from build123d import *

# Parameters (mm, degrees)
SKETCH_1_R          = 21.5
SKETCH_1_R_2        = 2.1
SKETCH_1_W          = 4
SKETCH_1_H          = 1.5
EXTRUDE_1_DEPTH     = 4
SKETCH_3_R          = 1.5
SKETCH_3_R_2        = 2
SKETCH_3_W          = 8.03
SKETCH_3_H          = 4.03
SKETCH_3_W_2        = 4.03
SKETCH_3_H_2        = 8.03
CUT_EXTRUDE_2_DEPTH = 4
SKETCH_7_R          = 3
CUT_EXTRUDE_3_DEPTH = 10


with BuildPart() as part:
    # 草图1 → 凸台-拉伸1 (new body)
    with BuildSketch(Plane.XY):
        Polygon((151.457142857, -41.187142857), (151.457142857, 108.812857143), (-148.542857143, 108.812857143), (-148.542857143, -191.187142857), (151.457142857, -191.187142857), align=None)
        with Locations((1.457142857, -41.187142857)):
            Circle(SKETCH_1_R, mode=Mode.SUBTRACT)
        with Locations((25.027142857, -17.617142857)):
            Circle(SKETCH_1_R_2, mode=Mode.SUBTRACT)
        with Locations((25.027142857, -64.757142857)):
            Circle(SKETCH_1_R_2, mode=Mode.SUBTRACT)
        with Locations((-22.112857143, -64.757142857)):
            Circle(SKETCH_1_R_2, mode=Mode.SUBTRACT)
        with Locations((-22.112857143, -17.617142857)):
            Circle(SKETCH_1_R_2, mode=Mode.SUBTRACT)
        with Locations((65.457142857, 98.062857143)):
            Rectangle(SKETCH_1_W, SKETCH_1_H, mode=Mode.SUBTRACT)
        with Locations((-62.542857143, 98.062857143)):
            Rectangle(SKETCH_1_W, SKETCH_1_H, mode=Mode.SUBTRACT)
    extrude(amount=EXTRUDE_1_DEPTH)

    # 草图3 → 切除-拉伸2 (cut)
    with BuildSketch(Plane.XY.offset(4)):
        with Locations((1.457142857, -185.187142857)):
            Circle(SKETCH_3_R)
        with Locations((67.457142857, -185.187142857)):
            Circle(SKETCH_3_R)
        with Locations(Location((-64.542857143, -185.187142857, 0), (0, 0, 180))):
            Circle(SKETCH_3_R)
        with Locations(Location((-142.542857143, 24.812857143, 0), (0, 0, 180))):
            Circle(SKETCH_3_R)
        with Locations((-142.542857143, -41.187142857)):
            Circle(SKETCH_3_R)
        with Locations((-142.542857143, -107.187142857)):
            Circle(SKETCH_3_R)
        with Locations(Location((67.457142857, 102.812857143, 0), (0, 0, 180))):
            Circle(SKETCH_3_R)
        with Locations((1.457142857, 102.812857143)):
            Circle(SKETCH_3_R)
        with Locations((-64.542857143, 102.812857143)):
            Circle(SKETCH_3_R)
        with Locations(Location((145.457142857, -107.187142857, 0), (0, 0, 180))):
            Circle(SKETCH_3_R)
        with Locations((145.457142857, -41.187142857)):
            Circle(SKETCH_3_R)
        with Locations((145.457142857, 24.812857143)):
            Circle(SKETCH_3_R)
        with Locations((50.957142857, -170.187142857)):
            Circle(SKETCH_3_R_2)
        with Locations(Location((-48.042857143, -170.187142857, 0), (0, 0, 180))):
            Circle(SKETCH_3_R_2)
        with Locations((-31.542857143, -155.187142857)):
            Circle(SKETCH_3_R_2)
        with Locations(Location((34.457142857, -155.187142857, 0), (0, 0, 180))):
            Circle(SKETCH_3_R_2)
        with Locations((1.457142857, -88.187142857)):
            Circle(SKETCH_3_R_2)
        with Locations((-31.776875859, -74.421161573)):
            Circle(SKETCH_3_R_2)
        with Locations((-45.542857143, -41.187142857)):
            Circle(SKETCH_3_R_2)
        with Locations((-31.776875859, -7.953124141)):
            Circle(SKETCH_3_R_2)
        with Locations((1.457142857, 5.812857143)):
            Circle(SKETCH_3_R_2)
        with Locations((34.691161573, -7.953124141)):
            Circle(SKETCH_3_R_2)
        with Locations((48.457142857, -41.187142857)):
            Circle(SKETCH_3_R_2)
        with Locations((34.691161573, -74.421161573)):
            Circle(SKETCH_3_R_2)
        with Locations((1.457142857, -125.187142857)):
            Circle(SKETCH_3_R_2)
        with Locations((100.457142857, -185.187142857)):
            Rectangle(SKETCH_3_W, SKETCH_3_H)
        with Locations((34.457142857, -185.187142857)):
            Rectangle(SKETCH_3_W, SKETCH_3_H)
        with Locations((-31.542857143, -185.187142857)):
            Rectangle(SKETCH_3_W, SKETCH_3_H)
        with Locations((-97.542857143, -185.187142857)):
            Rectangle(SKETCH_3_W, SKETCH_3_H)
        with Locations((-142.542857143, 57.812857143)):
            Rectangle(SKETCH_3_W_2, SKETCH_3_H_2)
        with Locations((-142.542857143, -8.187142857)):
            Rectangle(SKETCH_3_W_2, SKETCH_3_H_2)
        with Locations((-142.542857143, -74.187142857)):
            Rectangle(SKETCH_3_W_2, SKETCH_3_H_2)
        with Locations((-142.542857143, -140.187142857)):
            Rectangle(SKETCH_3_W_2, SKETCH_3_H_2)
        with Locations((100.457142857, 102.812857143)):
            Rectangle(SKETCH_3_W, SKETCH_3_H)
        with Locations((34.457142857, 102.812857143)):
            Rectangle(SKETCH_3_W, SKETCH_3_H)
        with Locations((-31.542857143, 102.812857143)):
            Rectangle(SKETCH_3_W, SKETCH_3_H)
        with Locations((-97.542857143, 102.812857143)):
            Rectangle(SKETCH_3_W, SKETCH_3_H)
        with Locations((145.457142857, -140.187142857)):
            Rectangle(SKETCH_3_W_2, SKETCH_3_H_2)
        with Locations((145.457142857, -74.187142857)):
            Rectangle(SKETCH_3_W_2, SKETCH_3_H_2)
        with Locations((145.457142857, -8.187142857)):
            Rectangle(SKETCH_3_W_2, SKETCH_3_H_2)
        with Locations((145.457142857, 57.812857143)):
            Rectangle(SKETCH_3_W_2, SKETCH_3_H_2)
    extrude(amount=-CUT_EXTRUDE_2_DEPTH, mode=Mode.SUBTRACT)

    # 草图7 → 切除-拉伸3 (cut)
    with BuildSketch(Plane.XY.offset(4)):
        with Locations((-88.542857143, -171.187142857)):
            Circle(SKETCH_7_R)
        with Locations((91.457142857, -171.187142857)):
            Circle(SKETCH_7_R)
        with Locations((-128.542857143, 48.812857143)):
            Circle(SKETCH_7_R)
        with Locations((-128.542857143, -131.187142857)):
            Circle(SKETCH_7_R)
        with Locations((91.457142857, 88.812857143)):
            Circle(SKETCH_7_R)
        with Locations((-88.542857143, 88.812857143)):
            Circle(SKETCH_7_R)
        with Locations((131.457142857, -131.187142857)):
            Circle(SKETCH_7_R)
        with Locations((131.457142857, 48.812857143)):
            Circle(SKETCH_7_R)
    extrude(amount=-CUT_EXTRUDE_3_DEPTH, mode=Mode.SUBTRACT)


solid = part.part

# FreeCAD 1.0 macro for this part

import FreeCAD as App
import Part
import Sketcher
from FreeCAD import Vector


def add_polygon(sketch, points):
    """Adds a closed chain of lines whose ends are joined by coincident constraints."""
    first, n = sketch.GeometryCount, len(points)
    for a, b in zip(points, points[1:] + points[:1]):
        sketch.addGeometry(Part.LineSegment(App.Vector(*a, 0), App.Vector(*b, 0)), False)
    for i in range(n):
        sketch.addConstraint(Sketcher.Constraint("Coincident", first + i, 2, first + (i + 1) % n, 1))

doc = App.newDocument("Part")
params = doc.addObject("Spreadsheet::Sheet", "Params")
for row, (alias, value) in enumerate([
    ("sketch1_diameter", "43 mm"),
    ("sketch1_diameter2", "4.2 mm"),
    ("sketch1_width", "300 mm"),
    ("sketch1_width2", "4 mm"),
    ("sketch1_height", "1.5 mm"),
    ("pad1_length", "4 mm"),
    ("sketch2_diameter", "3 mm"),
    ("sketch2_diameter2", "4 mm"),
    ("sketch2_width", "8.03 mm"),
    ("sketch2_width2", "4.03 mm"),
    ("pocket1_length", "4 mm"),
    ("sketch3_diameter", "6 mm"),
    ("pocket2_length", "10 mm"),
], start=1):
    params.set(f"A{row}", alias)
    params.set(f"B{row}", "=" + value)
    params.setAlias(f"B{row}", alias)

body = doc.addObject("PartDesign::Body", "Body")

# Sketch on XY plane
sketch1 = body.newObject("Sketcher::SketchObject", "Sketch")
sketch1.AttachmentSupport = (doc.getObject("XY_Plane"), [""])
sketch1.MapMode = "FlatFace"
add_polygon(sketch1, [(151.5, 108.8), (-148.5, 108.8), (-148.5, -191.2), (151.5, -191.2)])  # lines 0-3
sketch1.addGeometry(Part.Circle(Vector(-22.1, -64.8, 0), Vector(0, 0, 1), 2.1), False)  # 4
sketch1.addGeometry(Part.Circle(Vector(-22.1, -17.6, 0), Vector(0, 0, 1), 2.1), False)  # 5
sketch1.addGeometry(Part.Circle(Vector(25, -64.8, 0), Vector(0, 0, 1), 2.1), False)  # 6
sketch1.addGeometry(Part.Circle(Vector(1.5, -41.2, 0), Vector(0, 0, 1), 21.5), False)  # 7
sketch1.addGeometry(Part.Circle(Vector(25, -17.6, 0), Vector(0, 0, 1), 2.1), False)  # 8
add_polygon(sketch1, [(-60.5, 97.3), (-64.5, 97.3), (-64.5, 98.8), (-60.5, 98.8)])  # lines 9-12
add_polygon(sketch1, [(67.5, 97.3), (63.5, 97.3), (63.5, 98.8), (67.5, 98.8)])  # lines 13-16
sketch1.addConstraint([
    Sketcher.Constraint("Horizontal", 0),
    Sketcher.Constraint("Vertical", 1),
    Sketcher.Constraint("Horizontal", 2),
    Sketcher.Constraint("Vertical", 3),
    Sketcher.Constraint("Horizontal", 9),
    Sketcher.Constraint("Vertical", 10),
    Sketcher.Constraint("Horizontal", 11),
    Sketcher.Constraint("Vertical", 12),
    Sketcher.Constraint("Horizontal", 13),
    Sketcher.Constraint("Vertical", 14),
    Sketcher.Constraint("Horizontal", 15),
    Sketcher.Constraint("Vertical", 16),
    Sketcher.Constraint("Equal", 4, 5),
    Sketcher.Constraint("Equal", 5, 6),
    Sketcher.Constraint("Equal", 6, 8),
    Sketcher.Constraint("Horizontal", 4, 3, 6, 3),
    Sketcher.Constraint("Horizontal", 5, 3, 8, 3),
    Sketcher.Constraint("Horizontal", 12, 2, 13, 2),
    Sketcher.Constraint("Horizontal", 11, 2, 14, 2),
    Sketcher.Constraint("Vertical", 4, 3, 5, 3),
    Sketcher.Constraint("Vertical", 6, 3, 8, 3),
    Sketcher.Constraint("Equal", 11, 13),
    Sketcher.Constraint("Equal", 2, 1),
    Sketcher.Constraint("Diameter", 7, 43.0),
    Sketcher.Constraint("Diameter", 4, 4.2),
    Sketcher.Constraint("DistanceX", 0, 2, 0, 1, 300.0),
    Sketcher.Constraint("DistanceX", 9, 2, 9, 1, 4.0),
    Sketcher.Constraint("DistanceY", 10, 1, 10, 2, 1.5),
    Sketcher.Constraint("DistanceX", 0, 2, 7, 3, 150.0),
    Sketcher.Constraint("DistanceY", 7, 3, 0, 2, 150.0),
    Sketcher.Constraint("DistanceX", 0, 2, 9, 2, 84.0),
    Sketcher.Constraint("DistanceY", 10, 2, 0, 2, 10.0),
    Sketcher.Constraint("DistanceX", 13, 2, 3, 2, 88.0),
    Sketcher.Constraint("DistanceY", 4, 3, 5, 3, 47.14),
    Sketcher.Constraint("DistanceX", 4, 3, 6, 3, 47.14),
    Sketcher.Constraint("DistanceX", 5, 3, 7, 3, 23.57),
    Sketcher.Constraint("DistanceY", 7, 3, 5, 3, 23.57),
    Sketcher.Constraint("DistanceX", 4, 3, -1, 1, 22.112857),
    Sketcher.Constraint("DistanceY", 4, 3, -1, 1, 64.757143),
])
sketch1.setExpression("Constraints[35]", "Params.sketch1_diameter")
sketch1.setExpression("Constraints[36]", "Params.sketch1_diameter2")
sketch1.setExpression("Constraints[37]", "Params.sketch1_width")
sketch1.setExpression("Constraints[38]", "Params.sketch1_width2")
sketch1.setExpression("Constraints[39]", "Params.sketch1_height")
pad1 = body.newObject("PartDesign::Pad", "Pad")
pad1.Profile = sketch1
pad1.setExpression("Length", "Params.pad1_length")

# Sketch on XY plane
sketch2 = body.newObject("Sketcher::SketchObject", "Sketch001")
sketch2.AttachmentSupport = (doc.getObject("XY_Plane"), [""])
sketch2.MapMode = "FlatFace"
sketch2.AttachmentOffset = App.Placement(Vector(0, 0, 4), App.Rotation())
sketch2.addGeometry(Part.Circle(Vector(1.5, -185.2, 0), Vector(0, 0, 1), 1.5), False)  # 0
sketch2.addGeometry(Part.Circle(Vector(67.5, -185.2, 0), Vector(0, 0, 1), 1.5), False)  # 1
sketch2.addGeometry(Part.Circle(Vector(-64.5, -185.2, 0), Vector(0, 0, 1), 1.5), False)  # 2
sketch2.addGeometry(Part.Circle(Vector(-142.5, 24.8, 0), Vector(0, 0, 1), 1.5), False)  # 3
sketch2.addGeometry(Part.Circle(Vector(-142.5, -41.2, 0), Vector(0, 0, 1), 1.5), False)  # 4
sketch2.addGeometry(Part.Circle(Vector(-142.5, -107.2, 0), Vector(0, 0, 1), 1.5), False)  # 5
sketch2.addGeometry(Part.Circle(Vector(67.5, 102.8, 0), Vector(0, 0, 1), 1.5), False)  # 6
sketch2.addGeometry(Part.Circle(Vector(1.5, 102.8, 0), Vector(0, 0, 1), 1.5), False)  # 7
sketch2.addGeometry(Part.Circle(Vector(-64.5, 102.8, 0), Vector(0, 0, 1), 1.5), False)  # 8
sketch2.addGeometry(Part.Circle(Vector(145.5, -107.2, 0), Vector(0, 0, 1), 1.5), False)  # 9
sketch2.addGeometry(Part.Circle(Vector(145.5, -41.2, 0), Vector(0, 0, 1), 1.5), False)  # 10
sketch2.addGeometry(Part.Circle(Vector(145.5, 24.8, 0), Vector(0, 0, 1), 1.5), False)  # 11
sketch2.addGeometry(Part.Circle(Vector(51, -170.2, 0), Vector(0, 0, 1), 2), False)  # 12
sketch2.addGeometry(Part.Circle(Vector(-48, -170.2, 0), Vector(0, 0, 1), 2), False)  # 13
sketch2.addGeometry(Part.Circle(Vector(-31.5, -155.2, 0), Vector(0, 0, 1), 2), False)  # 14
sketch2.addGeometry(Part.Circle(Vector(34.5, -155.2, 0), Vector(0, 0, 1), 2), False)  # 15
sketch2.addGeometry(Part.Circle(Vector(1.5, -88.2, 0), Vector(0, 0, 1), 2), False)  # 16
sketch2.addGeometry(Part.Circle(Vector(-31.8, -74.4, 0), Vector(0, 0, 1), 2), False)  # 17
sketch2.addGeometry(Part.Circle(Vector(-45.5, -41.2, 0), Vector(0, 0, 1), 2), False)  # 18
sketch2.addGeometry(Part.Circle(Vector(-31.8, -8, 0), Vector(0, 0, 1), 2), False)  # 19
sketch2.addGeometry(Part.Circle(Vector(1.5, 5.8, 0), Vector(0, 0, 1), 2), False)  # 20
sketch2.addGeometry(Part.Circle(Vector(34.7, -8, 0), Vector(0, 0, 1), 2), False)  # 21
sketch2.addGeometry(Part.Circle(Vector(48.5, -41.2, 0), Vector(0, 0, 1), 2), False)  # 22
sketch2.addGeometry(Part.Circle(Vector(34.7, -74.4, 0), Vector(0, 0, 1), 2), False)  # 23
sketch2.addGeometry(Part.Circle(Vector(1.5, -125.2, 0), Vector(0, 0, 1), 2), False)  # 24
add_polygon(sketch2, [(96.4, -183.2), (96.4, -187.2), (104.5, -187.2), (104.5, -183.2)])  # lines 25-28
add_polygon(sketch2, [(30.4, -183.2), (30.4, -187.2), (38.5, -187.2), (38.5, -183.2)])  # lines 29-32
add_polygon(sketch2, [(-35.6, -183.2), (-35.6, -187.2), (-27.5, -187.2), (-27.5, -183.2)])  # lines 33-36
add_polygon(sketch2, [(-101.6, -183.2), (-101.6, -187.2), (-93.5, -187.2), (-93.5, -183.2)])  # lines 37-40
add_polygon(sketch2, [(-144.6, 61.8), (-144.6, 53.8), (-140.5, 53.8), (-140.5, 61.8)])  # lines 41-44
add_polygon(sketch2, [(-144.6, -4.2), (-144.6, -12.2), (-140.5, -12.2), (-140.5, -4.2)])  # lines 45-48
add_polygon(sketch2, [(-144.6, -70.2), (-144.6, -78.2), (-140.5, -78.2), (-140.5, -70.2)])  # lines 49-52
add_polygon(sketch2, [(-144.6, -136.2), (-144.6, -144.2), (-140.5, -144.2), (-140.5, -136.2)])  # lines 53-56
add_polygon(sketch2, [(96.4, 104.8), (96.4, 100.8), (104.5, 100.8), (104.5, 104.8)])  # lines 57-60
add_polygon(sketch2, [(30.4, 104.8), (30.4, 100.8), (38.5, 100.8), (38.5, 104.8)])  # lines 61-64
add_polygon(sketch2, [(-35.6, 104.8), (-35.6, 100.8), (-27.5, 100.8), (-27.5, 104.8)])  # lines 65-68
add_polygon(sketch2, [(-101.6, 104.8), (-101.6, 100.8), (-93.5, 100.8), (-93.5, 104.8)])  # lines 69-72
add_polygon(sketch2, [(143.4, -136.2), (143.4, -144.2), (147.5, -144.2), (147.5, -136.2)])  # lines 73-76
add_polygon(sketch2, [(143.4, -70.2), (143.4, -78.2), (147.5, -78.2), (147.5, -70.2)])  # lines 77-80
add_polygon(sketch2, [(143.4, -4.2), (143.4, -12.2), (147.5, -12.2), (147.5, -4.2)])  # lines 81-84
add_polygon(sketch2, [(143.4, 61.8), (143.4, 53.8), (147.5, 53.8), (147.5, 61.8)])  # lines 85-88
sketch2.addConstraint([
    Sketcher.Constraint("Vertical", 25),
    Sketcher.Constraint("Horizontal", 26),
    Sketcher.Constraint("Vertical", 27),
    Sketcher.Constraint("Horizontal", 28),
    Sketcher.Constraint("Vertical", 29),
    Sketcher.Constraint("Horizontal", 30),
    Sketcher.Constraint("Vertical", 31),
    Sketcher.Constraint("Horizontal", 32),
    Sketcher.Constraint("Vertical", 33),
    Sketcher.Constraint("Horizontal", 34),
    Sketcher.Constraint("Vertical", 35),
    Sketcher.Constraint("Horizontal", 36),
    Sketcher.Constraint("Vertical", 37),
    Sketcher.Constraint("Horizontal", 38),
    Sketcher.Constraint("Vertical", 39),
    Sketcher.Constraint("Horizontal", 40),
    Sketcher.Constraint("Vertical", 41),
    Sketcher.Constraint("Horizontal", 42),
    Sketcher.Constraint("Vertical", 43),
    Sketcher.Constraint("Horizontal", 44),
    Sketcher.Constraint("Vertical", 45),
    Sketcher.Constraint("Horizontal", 46),
    Sketcher.Constraint("Vertical", 47),
    Sketcher.Constraint("Horizontal", 48),
    Sketcher.Constraint("Vertical", 49),
    Sketcher.Constraint("Horizontal", 50),
    Sketcher.Constraint("Vertical", 51),
    Sketcher.Constraint("Horizontal", 52),
    Sketcher.Constraint("Vertical", 53),
    Sketcher.Constraint("Horizontal", 54),
    Sketcher.Constraint("Vertical", 55),
    Sketcher.Constraint("Horizontal", 56),
    Sketcher.Constraint("Vertical", 57),
    Sketcher.Constraint("Horizontal", 58),
    Sketcher.Constraint("Vertical", 59),
    Sketcher.Constraint("Horizontal", 60),
    Sketcher.Constraint("Vertical", 61),
    Sketcher.Constraint("Horizontal", 62),
    Sketcher.Constraint("Vertical", 63),
    Sketcher.Constraint("Horizontal", 64),
    Sketcher.Constraint("Vertical", 65),
    Sketcher.Constraint("Horizontal", 66),
    Sketcher.Constraint("Vertical", 67),
    Sketcher.Constraint("Horizontal", 68),
    Sketcher.Constraint("Vertical", 69),
    Sketcher.Constraint("Horizontal", 70),
    Sketcher.Constraint("Vertical", 71),
    Sketcher.Constraint("Horizontal", 72),
    Sketcher.Constraint("Vertical", 73),
    Sketcher.Constraint("Horizontal", 74),
    Sketcher.Constraint("Vertical", 75),
    Sketcher.Constraint("Horizontal", 76),
    Sketcher.Constraint("Vertical", 77),
    Sketcher.Constraint("Horizontal", 78),
    Sketcher.Constraint("Vertical", 79),
    Sketcher.Constraint("Horizontal", 80),
    Sketcher.Constraint("Vertical", 81),
    Sketcher.Constraint("Horizontal", 82),
    Sketcher.Constraint("Vertical", 83),
    Sketcher.Constraint("Horizontal", 84),
    Sketcher.Constraint("Vertical", 85),
    Sketcher.Constraint("Horizontal", 86),
    Sketcher.Constraint("Vertical", 87),
    Sketcher.Constraint("Horizontal", 88),
    Sketcher.Constraint("Equal", 0, 1),
    Sketcher.Constraint("Equal", 1, 2),
    Sketcher.Constraint("Equal", 2, 3),
    Sketcher.Constraint("Equal", 3, 4),
    Sketcher.Constraint("Equal", 4, 5),
    Sketcher.Constraint("Equal", 5, 6),
    Sketcher.Constraint("Equal", 6, 7),
    Sketcher.Constraint("Equal", 7, 8),
    Sketcher.Constraint("Equal", 8, 9),
    Sketcher.Constraint("Equal", 9, 10),
    Sketcher.Constraint("Equal", 10, 11),
    Sketcher.Constraint("Equal", 12, 13),
    Sketcher.Constraint("Equal", 13, 14),
    Sketcher.Constraint("Equal", 14, 15),
    Sketcher.Constraint("Equal", 15, 16),
    Sketcher.Constraint("Equal", 16, 17),
    Sketcher.Constraint("Equal", 17, 18),
    Sketcher.Constraint("Equal", 18, 19),
    Sketcher.Constraint("Equal", 19, 20),
    Sketcher.Constraint("Equal", 20, 21),
    Sketcher.Constraint("Equal", 21, 22),
    Sketcher.Constraint("Equal", 22, 23),
    Sketcher.Constraint("Equal", 23, 24),
    Sketcher.Constraint("Horizontal", 0, 3, 1, 3),
    Sketcher.Constraint("Horizontal", 1, 3, 2, 3),
    Sketcher.Constraint("Horizontal", 6, 3, 7, 3),
    Sketcher.Constraint("Horizontal", 7, 3, 8, 3),
    Sketcher.Constraint("Horizontal", 5, 3, 9, 3),
    Sketcher.Constraint("Horizontal", 4, 3, 10, 3),
    Sketcher.Constraint("Horizontal", 3, 3, 11, 3),
    Sketcher.Constraint("Horizontal", 12, 3, 13, 3),
    Sketcher.Constraint("Horizontal", 14, 3, 15, 3),
    Sketcher.Constraint("Horizontal", 10, 3, 18, 3),
    Sketcher.Constraint("Horizontal", 19, 3, 21, 3),
    Sketcher.Constraint("Horizontal", 18, 3, 22, 3),
    Sketcher.Constraint("Horizontal", 17, 3, 23, 3),
    Sketcher.Constraint("Horizontal", 26, 2, 29, 2),
    Sketcher.Constraint("Horizontal", 28, 2, 31, 2),
    Sketcher.Constraint("Horizontal", 30, 2, 33, 2),
    Sketcher.Constraint("Horizontal", 32, 2, 35, 2),
    Sketcher.Constraint("Horizontal", 34, 2, 37, 2),
    Sketcher.Constraint("Horizontal", 36, 2, 39, 2),
    Sketcher.Constraint("Horizontal", 58, 2, 61, 2),
    Sketcher.Constraint("Horizontal", 60, 2, 63, 2),
    Sketcher.Constraint("Horizontal", 62, 2, 65, 2),
    Sketcher.Constraint("Horizontal", 64, 2, 67, 2),
    Sketcher.Constraint("Horizontal", 66, 2, 69, 2),
    Sketcher.Constraint("Horizontal", 68, 2, 71, 2),
    Sketcher.Constraint("Horizontal", 54, 2, 73, 2),
    Sketcher.Constraint("Horizontal", 56, 2, 75, 2),
    Sketcher.Constraint("Horizontal", 50, 2, 77, 2),
    Sketcher.Constraint("Horizontal", 52, 2, 79, 2),
    Sketcher.Constraint("Horizontal", 46, 2, 81, 2),
    Sketcher.Constraint("Horizontal", 48, 2, 83, 2),
    Sketcher.Constraint("Horizontal", 42, 2, 85, 2),
    Sketcher.Constraint("Horizontal", 44, 2, 87, 2),
    Sketcher.Constraint("Vertical", 3, 3, 4, 3),
    Sketcher.Constraint("Vertical", 4, 3, 5, 3),
    Sketcher.Constraint("Vertical", 1, 3, 6, 3),
    Sketcher.Constraint("Vertical", 0, 3, 7, 3),
    Sketcher.Constraint("Vertical", 2, 3, 8, 3),
    Sketcher.Constraint("Vertical", 9, 3, 10, 3),
    Sketcher.Constraint("Vertical", 10, 3, 11, 3),
    Sketcher.Constraint("Vertical", 7, 3, 16, 3),
    Sketcher.Constraint("Vertical", 17, 3, 19, 3),
    Sketcher.Constraint("Vertical", 16, 3, 20, 3),
    Sketcher.Constraint("Vertical", 21, 3, 23, 3),
    Sketcher.Constraint("Vertical", 20, 3, 24, 3),
    Sketcher.Constraint("Vertical", 44, 2, 45, 2),
    Sketcher.Constraint("Vertical", 43, 2, 46, 2),
    Sketcher.Constraint("Vertical", 48, 2, 49, 2),
    Sketcher.Constraint("Vertical", 47, 2, 50, 2),
    Sketcher.Constraint("Vertical", 52, 2, 53, 2),
    Sketcher.Constraint("Vertical", 51, 2, 54, 2),
    Sketcher.Constraint("Vertical", 28, 2, 57, 2),
    Sketcher.Constraint("Vertical", 27, 2, 58, 2),
    Sketcher.Constraint("Vertical", 32, 2, 61, 2),
    Sketcher.Constraint("Vertical", 31, 2, 62, 2),
    Sketcher.Constraint("Vertical", 36, 2, 65, 2),
    Sketcher.Constraint("Vertical", 35, 2, 66, 2),
    Sketcher.Constraint("Vertical", 40, 2, 69, 2),
    Sketcher.Constraint("Vertical", 39, 2, 70, 2),
    Sketcher.Constraint("Vertical", 76, 2, 77, 2),
    Sketcher.Constraint("Vertical", 75, 2, 78, 2),
    Sketcher.Constraint("Vertical", 80, 2, 81, 2),
    Sketcher.Constraint("Vertical", 79, 2, 82, 2),
    Sketcher.Constraint("Vertical", 84, 2, 85, 2),
    Sketcher.Constraint("Vertical", 83, 2, 86, 2),
    Sketcher.Constraint("Equal", 28, 30),
    Sketcher.Constraint("Equal", 32, 34),
    Sketcher.Constraint("Equal", 36, 38),
    Sketcher.Constraint("Equal", 56, 74),
    Sketcher.Constraint("Equal", 88, 25),
    Sketcher.Constraint("Equal", 72, 41),
    Sketcher.Constraint("Equal", 43, 45),
    Sketcher.Constraint("Equal", 47, 49),
    Sketcher.Constraint("Equal", 51, 53),
    Sketcher.Constraint("Equal", 39, 57),
    Sketcher.Constraint("Diameter", 0, 3.0),
    Sketcher.Constraint("Diameter", 12, 4.0),
    Sketcher.Constraint("DistanceX", 26, 1, 26, 2, 8.03),
    Sketcher.Constraint("DistanceX", 42, 1, 42, 2, 4.03),
    Sketcher.Constraint("DistanceY", 17, 3, -1, 1, 74.421162),
    Sketcher.Constraint("DistanceX", -1, 1, 21, 3, 34.691162),
    Sketcher.Constraint("DistanceX", -1, 1, 0, 3, 1.457143),
    Sketcher.Constraint("DistanceY", 0, 3, -1, 1, 185.187143),
    Sketcher.Constraint("DistanceX", -1, 1, 1, 3, 67.457143),
    Sketcher.Constraint("DistanceX", 2, 3, -1, 1, 64.542857),
    Sketcher.Constraint("DistanceX", 3, 3, -1, 1, 142.542857),
    Sketcher.Constraint("DistanceY", -1, 1, 3, 3, 24.812857),
    Sketcher.Constraint("DistanceY", 4, 3, -1, 1, 41.187143),
    Sketcher.Constraint("DistanceY", 5, 3, -1, 1, 107.187143),
    Sketcher.Constraint("DistanceY", -1, 1, 6, 3, 102.812857),
    Sketcher.Constraint("DistanceX", -1, 1, 9, 3, 145.457143),
    Sketcher.Constraint("DistanceX", -1, 1, 12, 3, 50.957143),
    Sketcher.Constraint("DistanceY", 12, 3, -1, 1, 170.187143),
    Sketcher.Constraint("DistanceX", 13, 3, -1, 1, 48.042857),
    Sketcher.Constraint("DistanceX", 14, 3, -1, 1, 31.542857),
    Sketcher.Constraint("DistanceY", 14, 3, -1, 1, 155.187143),
    Sketcher.Constraint("DistanceX", -1, 1, 15, 3, 34.457143),
    Sketcher.Constraint("DistanceY", 16, 3, -1, 1, 88.187143),
    Sketcher.Constraint("DistanceX", 17, 3, -1, 1, 31.776876),
    Sketcher.Constraint("DistanceX", 18, 3, -1, 1, 45.542857),
    Sketcher.Constraint("DistanceY", 19, 3, -1, 1, 7.953124),
    Sketcher.Constraint("DistanceY", -1, 1, 20, 3, 5.812857),
    Sketcher.Constraint("DistanceX", -1, 1, 22, 3, 48.457143),
    Sketcher.Constraint("DistanceY", 24, 3, -1, 1, 125.187143),
    Sketcher.Constraint("DistanceX", -1, 1, 25, 2, 96.442143),
    Sketcher.Constraint("DistanceY", 25, 2, -1, 1, 187.202143),
    Sketcher.Constraint("DistanceX", -1, 1, 29, 2, 30.442143),
    Sketcher.Constraint("DistanceX", 33, 2, -1, 1, 35.557857),
    Sketcher.Constraint("DistanceX", 37, 2, -1, 1, 101.557857),
    Sketcher.Constraint("DistanceX", 41, 2, -1, 1, 144.557857),
    Sketcher.Constraint("DistanceY", -1, 1, 41, 2, 53.797857),
    Sketcher.Constraint("DistanceY", 45, 2, -1, 1, 12.202143),
    Sketcher.Constraint("DistanceY", 49, 2, -1, 1, 78.202143),
    Sketcher.Constraint("DistanceY", 53, 2, -1, 1, 144.202143),
    Sketcher.Constraint("DistanceY", -1, 1, 57, 2, 100.797857),
    Sketcher.Constraint("DistanceX", -1, 1, 73, 2, 143.442143),
])
sketch2.setExpression("Constraints[226]", "Params.sketch2_diameter")
sketch2.setExpression("Constraints[227]", "Params.sketch2_diameter2")
sketch2.setExpression("Constraints[228]", "Params.sketch2_width")
sketch2.setExpression("Constraints[229]", "Params.sketch2_width2")
pocket1 = body.newObject("PartDesign::Pocket", "Pocket")
pocket1.Profile = sketch2
pocket1.setExpression("Length", "Params.pocket1_length")

# Sketch on XY plane
sketch3 = body.newObject("Sketcher::SketchObject", "Sketch002")
sketch3.AttachmentSupport = (doc.getObject("XY_Plane"), [""])
sketch3.MapMode = "FlatFace"
sketch3.AttachmentOffset = App.Placement(Vector(0, 0, 4), App.Rotation())
sketch3.addGeometry([
    Part.Circle(Vector(-88.5, -171.2, 0), Vector(0, 0, 1), 3),  # 0
    Part.Circle(Vector(91.5, -171.2, 0), Vector(0, 0, 1), 3),  # 1
    Part.Circle(Vector(-128.5, 48.8, 0), Vector(0, 0, 1), 3),  # 2
    Part.Circle(Vector(-128.5, -131.2, 0), Vector(0, 0, 1), 3),  # 3
    Part.Circle(Vector(91.5, 88.8, 0), Vector(0, 0, 1), 3),  # 4
    Part.Circle(Vector(-88.5, 88.8, 0), Vector(0, 0, 1), 3),  # 5
    Part.Circle(Vector(131.5, -131.2, 0), Vector(0, 0, 1), 3),  # 6
    Part.Circle(Vector(131.5, 48.8, 0), Vector(0, 0, 1), 3),  # 7
], False)
sketch3.addConstraint([
    Sketcher.Constraint("Equal", 0, 1),
    Sketcher.Constraint("Equal", 1, 2),
    Sketcher.Constraint("Equal", 2, 3),
    Sketcher.Constraint("Equal", 3, 4),
    Sketcher.Constraint("Equal", 4, 5),
    Sketcher.Constraint("Equal", 5, 6),
    Sketcher.Constraint("Equal", 6, 7),
    Sketcher.Constraint("Horizontal", 0, 3, 1, 3),
    Sketcher.Constraint("Horizontal", 4, 3, 5, 3),
    Sketcher.Constraint("Horizontal", 3, 3, 6, 3),
    Sketcher.Constraint("Horizontal", 2, 3, 7, 3),
    Sketcher.Constraint("Vertical", 2, 3, 3, 3),
    Sketcher.Constraint("Vertical", 1, 3, 4, 3),
    Sketcher.Constraint("Vertical", 0, 3, 5, 3),
    Sketcher.Constraint("Vertical", 6, 3, 7, 3),
    Sketcher.Constraint("Diameter", 0, 6.0),
    Sketcher.Constraint("DistanceX", 0, 3, 1, 3, 180.0),
    Sketcher.Constraint("DistanceX", 2, 3, 0, 3, 40.0),
    Sketcher.Constraint("DistanceY", 0, 3, 2, 3, 220.0),
    Sketcher.Constraint("DistanceY", 0, 3, 3, 3, 40.0),
    Sketcher.Constraint("DistanceY", 2, 3, 4, 3, 40.0),
    Sketcher.Constraint("DistanceX", 1, 3, 6, 3, 40.0),
    Sketcher.Constraint("DistanceX", 0, 3, -1, 1, 88.542857),
    Sketcher.Constraint("DistanceY", 0, 3, -1, 1, 171.187143),
])
sketch3.setExpression("Constraints[15]", "Params.sketch3_diameter")
pocket2 = body.newObject("PartDesign::Pocket", "Pocket001")
pocket2.Profile = sketch3
pocket2.setExpression("Length", "Params.pocket2_length")

doc.recompute()
